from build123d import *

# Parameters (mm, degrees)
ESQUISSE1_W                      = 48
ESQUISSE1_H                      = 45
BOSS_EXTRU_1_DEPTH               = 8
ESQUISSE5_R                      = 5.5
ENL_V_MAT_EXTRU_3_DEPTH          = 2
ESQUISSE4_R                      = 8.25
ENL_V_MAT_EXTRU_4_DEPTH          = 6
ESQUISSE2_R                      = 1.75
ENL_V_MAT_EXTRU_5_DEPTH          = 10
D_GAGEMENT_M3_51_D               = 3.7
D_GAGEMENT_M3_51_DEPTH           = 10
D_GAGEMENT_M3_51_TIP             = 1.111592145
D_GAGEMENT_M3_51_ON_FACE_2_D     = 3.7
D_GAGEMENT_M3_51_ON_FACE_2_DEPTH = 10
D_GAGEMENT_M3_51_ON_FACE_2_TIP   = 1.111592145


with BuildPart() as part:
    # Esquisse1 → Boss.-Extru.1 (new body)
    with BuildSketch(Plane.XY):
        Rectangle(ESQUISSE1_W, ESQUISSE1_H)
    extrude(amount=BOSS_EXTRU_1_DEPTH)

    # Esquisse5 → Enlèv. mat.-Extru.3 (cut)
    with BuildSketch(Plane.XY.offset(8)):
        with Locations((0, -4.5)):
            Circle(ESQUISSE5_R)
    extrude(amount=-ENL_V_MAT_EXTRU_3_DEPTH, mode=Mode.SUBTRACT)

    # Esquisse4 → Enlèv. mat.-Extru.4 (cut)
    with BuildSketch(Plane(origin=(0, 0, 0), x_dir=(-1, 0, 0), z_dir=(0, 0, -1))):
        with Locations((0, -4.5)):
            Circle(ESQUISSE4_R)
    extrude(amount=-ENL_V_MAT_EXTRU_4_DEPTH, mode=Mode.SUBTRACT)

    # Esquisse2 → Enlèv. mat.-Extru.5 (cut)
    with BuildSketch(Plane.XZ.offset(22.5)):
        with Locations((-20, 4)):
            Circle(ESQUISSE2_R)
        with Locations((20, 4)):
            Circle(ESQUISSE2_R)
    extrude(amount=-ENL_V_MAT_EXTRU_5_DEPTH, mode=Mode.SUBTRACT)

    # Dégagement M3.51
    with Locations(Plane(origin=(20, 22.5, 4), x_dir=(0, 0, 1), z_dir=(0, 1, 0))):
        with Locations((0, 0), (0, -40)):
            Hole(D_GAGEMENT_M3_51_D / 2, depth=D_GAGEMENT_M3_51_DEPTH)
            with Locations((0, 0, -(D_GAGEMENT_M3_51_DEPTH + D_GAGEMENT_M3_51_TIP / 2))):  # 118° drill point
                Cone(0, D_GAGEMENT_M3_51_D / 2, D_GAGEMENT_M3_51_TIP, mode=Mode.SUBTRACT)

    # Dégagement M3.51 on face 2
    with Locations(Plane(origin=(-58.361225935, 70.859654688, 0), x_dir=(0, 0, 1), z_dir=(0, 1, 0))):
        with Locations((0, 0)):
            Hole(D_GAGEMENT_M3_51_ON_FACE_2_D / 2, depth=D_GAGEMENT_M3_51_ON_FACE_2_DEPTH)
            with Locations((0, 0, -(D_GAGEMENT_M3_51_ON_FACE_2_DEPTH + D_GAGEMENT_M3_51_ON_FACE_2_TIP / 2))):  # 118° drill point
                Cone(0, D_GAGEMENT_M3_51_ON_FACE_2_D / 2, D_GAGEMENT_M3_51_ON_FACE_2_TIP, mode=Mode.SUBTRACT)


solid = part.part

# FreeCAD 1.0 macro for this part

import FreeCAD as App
import Part
import Sketcher

V = App.Vector
Q = App.Units.Quantity

doc = App.newDocument("Part")
body = doc.addObject("PartDesign::Body", "Body")

sketch1 = body.newObject("Sketcher::SketchObject", "Sketch")
sketch1.AttachmentSupport = (doc.getObject("XY_Plane"), [""])
sketch1.MapMode = "FlatFace"
sketch1.addGeometry(Part.LineSegment(V(-24, 22, 0), V(-24, -22, 0)), False)
sketch1.addGeometry(Part.LineSegment(V(-24, -22, 0), V(24, -22, 0)), False)
sketch1.addGeometry(Part.LineSegment(V(24, -22, 0), V(24, 22, 0)), False)
sketch1.addGeometry(Part.LineSegment(V(24, 22, 0), V(-24, 22, 0)), False)
sketch1.addConstraint(Sketcher.Constraint("Coincident", 0, 2, 1, 1))
sketch1.addConstraint(Sketcher.Constraint("Coincident", 1, 2, 2, 1))
sketch1.addConstraint(Sketcher.Constraint("Coincident", 2, 2, 3, 1))
sketch1.addConstraint(Sketcher.Constraint("Coincident", 3, 2, 0, 1))
sketch1.addConstraint(Sketcher.Constraint("Vertical", 0))
sketch1.addConstraint(Sketcher.Constraint("Horizontal", 1))
sketch1.addConstraint(Sketcher.Constraint("Vertical", 2))
sketch1.addConstraint(Sketcher.Constraint("Horizontal", 3))
sketch1.addConstraint(Sketcher.Constraint("Symmetric", 0, 2, 2, 2, -1, 1))
sketch1.addConstraint(Sketcher.Constraint("DistanceX", 1, 1, 1, 2, Q("48 mm")))
sketch1.addConstraint(Sketcher.Constraint("DistanceY", 0, 2, 0, 1, Q("45 mm")))
pad1 = body.newObject("PartDesign::Pad", "Pad")
pad1.Profile = sketch1
pad1.Length = 8

sketch2 = body.newObject("Sketcher::SketchObject", "Sketch001")
sketch2.AttachmentSupport = (doc.getObject("XY_Plane"), [""])
sketch2.MapMode = "FlatFace"
sketch2.AttachmentOffset = App.Placement(V(0, 0, 8), App.Rotation())
sketch2.addGeometry(Part.Circle(V(0, -4, 0), V(0, 0, 1), 6), False)
sketch2.addConstraint(Sketcher.Constraint("PointOnObject", 0, 3, -2))
sketch2.addConstraint(Sketcher.Constraint("Diameter", 0, Q("11 mm")))
sketch2.addConstraint(Sketcher.Constraint("DistanceY", 0, 3, -1, 1, Q("4.5 mm")))
pocket1 = body.newObject("PartDesign::Pocket", "Pocket")
pocket1.Profile = sketch2
pocket1.Length = 2

sketch3 = body.newObject("Sketcher::SketchObject", "Sketch002")
sketch3.AttachmentSupport = (doc.getObject("XY_Plane"), [""])
sketch3.MapMode = "FlatFace"
sketch3.addGeometry(Part.Circle(V(0, -4, 0), V(0, 0, 1), 8), False)
sketch3.addConstraint(Sketcher.Constraint("PointOnObject", 0, 3, -2))
sketch3.addConstraint(Sketcher.Constraint("Diameter", 0, Q("16.5 mm")))
sketch3.addConstraint(Sketcher.Constraint("DistanceY", 0, 3, -1, 1, Q("4.5 mm")))
pocket2 = body.newObject("PartDesign::Pocket", "Pocket001")
pocket2.Profile = sketch3
pocket2.Length = 6
pocket2.Reversed = True

sketch4 = body.newObject("Sketcher::SketchObject", "Sketch003")
sketch4.AttachmentSupport = (doc.getObject("XZ_Plane"), [""])
sketch4.MapMode = "FlatFace"
sketch4.AttachmentOffset = App.Placement(V(0, 0, 22.5), App.Rotation())
sketch4.addGeometry(Part.Circle(V(-20, 4, 0), V(0, 0, 1), 1.8), False)
sketch4.addGeometry(Part.Circle(V(20, 4, 0), V(0, 0, 1), 1.8), False)
sketch4.addConstraint(Sketcher.Constraint("Equal", 0, 1))
sketch4.addConstraint(Sketcher.Constraint("Symmetric", 0, 3, 1, 3, -2))
sketch4.addConstraint(Sketcher.Constraint("Diameter", 0, Q("3.5 mm")))
sketch4.addConstraint(Sketcher.Constraint("DistanceX", 0, 3, -1, 1, Q("20 mm")))
sketch4.addConstraint(Sketcher.Constraint("DistanceY", -1, 1, 0, 3, Q("4 mm")))
pocket3 = body.newObject("PartDesign::Pocket", "Pocket002")
pocket3.Profile = sketch4
pocket3.Length = 10

sketch5 = body.newObject("Sketcher::SketchObject", "Sketch004")
sketch5.AttachmentSupport = (doc.getObject("XZ_Plane"), [""])
sketch5.MapMode = "FlatFace"
sketch5.AttachmentOffset = App.Placement(V(0, 0, -22.5), App.Rotation())
sketch5.addGeometry(Part.Circle(V(20, 4, 0), V(0, 0, 1), 1.9), False)
sketch5.addGeometry(Part.Circle(V(-20, 4, 0), V(0, 0, 1), 1.9), False)
sketch5.addConstraint(Sketcher.Constraint("Equal", 0, 1))
sketch5.addConstraint(Sketcher.Constraint("Symmetric", 0, 3, 1, 3, -2))
sketch5.addConstraint(Sketcher.Constraint("Diameter", 0, Q("3.7 mm")))
sketch5.addConstraint(Sketcher.Constraint("DistanceX", -1, 1, 0, 3, Q("20 mm")))
sketch5.addConstraint(Sketcher.Constraint("DistanceY", -1, 1, 0, 3, Q("4 mm")))
doc.recompute()
hole = body.newObject("PartDesign::Hole", "Hole")
hole.Profile = sketch5
hole.ThreadType = "None"
hole.Diameter = 3.7
hole.DepthType = "Dimension"
hole.Depth = 10
hole.DrillPoint = "Angled"
hole.DrillPointAngle = 118
hole.Reversed = True

sketch6 = body.newObject("Sketcher::SketchObject", "Sketch005")
sketch6.AttachmentSupport = (doc.getObject("XZ_Plane"), [""])
sketch6.MapMode = "FlatFace"
sketch6.AttachmentOffset = App.Placement(V(0, 0, -70.859655), App.Rotation())
sketch6.addGeometry(Part.Circle(V(-58.4, 0, 0), V(0, 0, 1), 1.9), False)
sketch6.addConstraint(Sketcher.Constraint("PointOnObject", 0, 3, -1))
sketch6.addConstraint(Sketcher.Constraint("Diameter", 0, Q("3.7 mm")))
sketch6.addConstraint(Sketcher.Constraint("DistanceX", 0, 3, -1, 1, Q("58.361226 mm")))
doc.recompute()
hole2 = body.newObject("PartDesign::Hole", "Hole001")
hole2.Profile = sketch6
hole2.ThreadType = "None"
hole2.Diameter = 3.7
hole2.DepthType = "Dimension"
hole2.Depth = 10
hole2.DrillPoint = "Angled"
hole2.DrillPointAngle = 118
hole2.Reversed = True

doc.recompute()
